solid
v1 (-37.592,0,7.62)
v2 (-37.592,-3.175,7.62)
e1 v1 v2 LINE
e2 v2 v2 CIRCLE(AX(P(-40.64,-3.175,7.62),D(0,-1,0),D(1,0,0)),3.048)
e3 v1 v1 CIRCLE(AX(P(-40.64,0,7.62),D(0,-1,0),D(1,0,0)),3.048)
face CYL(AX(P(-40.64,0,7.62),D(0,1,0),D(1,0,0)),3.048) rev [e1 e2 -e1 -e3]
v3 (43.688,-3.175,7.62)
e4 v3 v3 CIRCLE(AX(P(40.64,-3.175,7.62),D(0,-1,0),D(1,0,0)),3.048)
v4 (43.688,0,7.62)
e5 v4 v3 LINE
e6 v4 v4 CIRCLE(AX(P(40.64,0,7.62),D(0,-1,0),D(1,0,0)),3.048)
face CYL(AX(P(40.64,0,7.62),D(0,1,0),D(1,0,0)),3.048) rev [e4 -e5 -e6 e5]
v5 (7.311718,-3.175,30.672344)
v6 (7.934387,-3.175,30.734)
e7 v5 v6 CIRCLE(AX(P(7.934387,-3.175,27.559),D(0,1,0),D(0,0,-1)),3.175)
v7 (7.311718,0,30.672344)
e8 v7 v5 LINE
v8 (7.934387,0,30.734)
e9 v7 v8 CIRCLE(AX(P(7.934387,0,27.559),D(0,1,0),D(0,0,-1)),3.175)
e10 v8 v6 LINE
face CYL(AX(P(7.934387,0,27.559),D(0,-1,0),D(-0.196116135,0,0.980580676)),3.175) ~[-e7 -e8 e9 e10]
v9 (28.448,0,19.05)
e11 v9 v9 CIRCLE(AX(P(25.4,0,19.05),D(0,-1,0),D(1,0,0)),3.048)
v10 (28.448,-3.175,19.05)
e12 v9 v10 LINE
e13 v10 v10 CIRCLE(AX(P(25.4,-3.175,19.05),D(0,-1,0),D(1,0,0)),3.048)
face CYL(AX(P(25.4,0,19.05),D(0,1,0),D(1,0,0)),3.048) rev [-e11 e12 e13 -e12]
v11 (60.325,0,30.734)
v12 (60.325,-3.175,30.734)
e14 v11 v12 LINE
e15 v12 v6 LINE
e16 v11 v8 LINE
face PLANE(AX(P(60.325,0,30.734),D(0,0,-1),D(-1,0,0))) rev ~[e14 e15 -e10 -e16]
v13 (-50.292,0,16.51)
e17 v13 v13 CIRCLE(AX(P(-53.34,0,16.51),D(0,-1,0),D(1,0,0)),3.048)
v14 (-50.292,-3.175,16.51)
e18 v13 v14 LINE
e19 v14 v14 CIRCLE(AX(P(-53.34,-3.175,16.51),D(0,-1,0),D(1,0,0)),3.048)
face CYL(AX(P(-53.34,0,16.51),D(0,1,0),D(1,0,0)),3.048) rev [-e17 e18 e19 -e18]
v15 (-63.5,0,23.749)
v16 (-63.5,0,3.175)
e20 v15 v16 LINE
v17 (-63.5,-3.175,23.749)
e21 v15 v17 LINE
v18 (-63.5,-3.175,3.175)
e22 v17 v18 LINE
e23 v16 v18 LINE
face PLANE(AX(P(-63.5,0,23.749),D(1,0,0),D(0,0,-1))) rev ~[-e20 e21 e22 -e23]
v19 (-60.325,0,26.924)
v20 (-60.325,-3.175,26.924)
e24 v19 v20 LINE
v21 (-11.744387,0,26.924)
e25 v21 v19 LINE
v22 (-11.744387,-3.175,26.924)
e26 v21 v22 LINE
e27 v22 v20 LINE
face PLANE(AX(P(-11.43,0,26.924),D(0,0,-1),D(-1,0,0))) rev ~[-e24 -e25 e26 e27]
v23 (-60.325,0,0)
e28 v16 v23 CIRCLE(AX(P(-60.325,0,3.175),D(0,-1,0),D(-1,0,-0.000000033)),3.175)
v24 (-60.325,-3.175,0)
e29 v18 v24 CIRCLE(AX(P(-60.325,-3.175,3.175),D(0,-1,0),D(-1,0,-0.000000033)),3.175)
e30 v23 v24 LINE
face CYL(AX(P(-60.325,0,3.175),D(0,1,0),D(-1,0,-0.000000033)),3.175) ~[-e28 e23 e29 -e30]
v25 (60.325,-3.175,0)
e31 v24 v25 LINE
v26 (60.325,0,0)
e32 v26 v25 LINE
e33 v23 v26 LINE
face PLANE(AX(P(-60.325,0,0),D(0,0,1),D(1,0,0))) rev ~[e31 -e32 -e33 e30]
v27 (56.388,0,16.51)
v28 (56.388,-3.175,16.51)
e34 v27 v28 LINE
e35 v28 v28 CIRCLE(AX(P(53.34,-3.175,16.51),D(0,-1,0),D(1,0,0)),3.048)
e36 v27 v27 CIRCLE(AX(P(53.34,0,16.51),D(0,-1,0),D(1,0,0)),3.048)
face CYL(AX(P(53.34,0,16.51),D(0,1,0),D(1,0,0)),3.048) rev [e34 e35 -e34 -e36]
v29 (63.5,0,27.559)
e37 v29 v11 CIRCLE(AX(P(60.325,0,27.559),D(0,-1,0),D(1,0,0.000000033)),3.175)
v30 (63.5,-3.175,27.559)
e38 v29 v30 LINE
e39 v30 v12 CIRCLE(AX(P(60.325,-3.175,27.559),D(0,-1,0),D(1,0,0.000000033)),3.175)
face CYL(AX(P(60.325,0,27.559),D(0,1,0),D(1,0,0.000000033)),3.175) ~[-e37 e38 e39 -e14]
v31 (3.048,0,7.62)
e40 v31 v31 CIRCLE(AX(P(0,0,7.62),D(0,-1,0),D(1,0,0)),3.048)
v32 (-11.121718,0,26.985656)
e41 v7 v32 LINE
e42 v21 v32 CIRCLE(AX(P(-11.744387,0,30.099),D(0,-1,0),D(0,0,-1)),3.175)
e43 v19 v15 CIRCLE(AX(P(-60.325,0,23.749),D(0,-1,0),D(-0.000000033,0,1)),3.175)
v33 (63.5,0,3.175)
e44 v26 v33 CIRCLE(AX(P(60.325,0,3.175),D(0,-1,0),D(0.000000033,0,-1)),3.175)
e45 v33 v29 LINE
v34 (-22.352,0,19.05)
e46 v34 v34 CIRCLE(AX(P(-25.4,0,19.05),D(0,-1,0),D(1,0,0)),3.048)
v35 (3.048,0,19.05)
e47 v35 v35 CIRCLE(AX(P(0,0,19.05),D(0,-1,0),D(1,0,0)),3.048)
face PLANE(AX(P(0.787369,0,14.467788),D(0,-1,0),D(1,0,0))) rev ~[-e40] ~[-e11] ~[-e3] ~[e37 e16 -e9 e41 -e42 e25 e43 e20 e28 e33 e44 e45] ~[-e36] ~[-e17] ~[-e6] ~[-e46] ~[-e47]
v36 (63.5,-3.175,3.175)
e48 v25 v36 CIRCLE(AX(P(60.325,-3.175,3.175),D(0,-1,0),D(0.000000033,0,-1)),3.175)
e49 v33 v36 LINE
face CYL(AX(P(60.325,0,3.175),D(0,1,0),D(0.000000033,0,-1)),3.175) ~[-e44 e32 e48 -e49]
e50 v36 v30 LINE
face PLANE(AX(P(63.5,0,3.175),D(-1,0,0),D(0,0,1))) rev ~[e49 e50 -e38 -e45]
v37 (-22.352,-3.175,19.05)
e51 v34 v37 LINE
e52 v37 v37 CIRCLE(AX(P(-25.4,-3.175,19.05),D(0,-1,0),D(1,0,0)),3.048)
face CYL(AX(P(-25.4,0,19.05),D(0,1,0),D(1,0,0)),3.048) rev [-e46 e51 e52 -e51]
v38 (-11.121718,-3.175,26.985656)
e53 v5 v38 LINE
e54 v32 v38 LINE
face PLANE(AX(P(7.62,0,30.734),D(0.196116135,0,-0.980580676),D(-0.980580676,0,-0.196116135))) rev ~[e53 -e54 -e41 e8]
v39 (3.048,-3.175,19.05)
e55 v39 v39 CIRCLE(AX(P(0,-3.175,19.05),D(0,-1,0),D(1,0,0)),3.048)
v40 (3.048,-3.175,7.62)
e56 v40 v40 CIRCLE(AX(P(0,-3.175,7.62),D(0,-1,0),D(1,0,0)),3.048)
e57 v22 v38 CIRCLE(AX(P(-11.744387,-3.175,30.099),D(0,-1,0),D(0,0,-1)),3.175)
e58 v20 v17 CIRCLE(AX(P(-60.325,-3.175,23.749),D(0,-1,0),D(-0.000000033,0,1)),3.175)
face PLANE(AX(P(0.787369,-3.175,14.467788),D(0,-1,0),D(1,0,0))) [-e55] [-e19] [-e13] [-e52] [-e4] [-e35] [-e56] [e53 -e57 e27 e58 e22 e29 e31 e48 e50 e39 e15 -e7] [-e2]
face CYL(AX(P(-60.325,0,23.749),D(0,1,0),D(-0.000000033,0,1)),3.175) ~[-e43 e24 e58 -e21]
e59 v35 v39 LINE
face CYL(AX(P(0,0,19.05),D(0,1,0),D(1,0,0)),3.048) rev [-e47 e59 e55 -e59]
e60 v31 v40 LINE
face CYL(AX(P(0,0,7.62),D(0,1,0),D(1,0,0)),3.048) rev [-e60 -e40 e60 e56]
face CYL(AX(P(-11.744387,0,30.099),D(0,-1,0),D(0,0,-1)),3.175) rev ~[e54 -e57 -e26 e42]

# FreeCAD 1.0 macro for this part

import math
import FreeCAD as App
import Part
import Sketcher
from FreeCAD import Vector
Q = App.Units.Quantity


def edges_at(feature, points):
    """Names of the edges that pass closest to the given points."""
    edges = feature.Shape.Edges
    near = lambda p: min(range(len(edges)), key=lambda i: edges[i].distToShape(Part.Vertex(*p))[0])
    return sorted({f"Edge{near(p) + 1}" for p in points})

doc = App.newDocument("Part")
body = doc.addObject("PartDesign::Body", "Body")

# Sketch on XZ plane
sketch1 = body.newObject("Sketcher::SketchObject", "Sketch")
sketch1.AttachmentSupport = (doc.getObject("XZ_Plane"), [""])
sketch1.MapMode = "FlatFace"
sketch1.addGeometry(Part.ArcOfCircle(Part.Circle(Vector(-60.325, 3.175, 0), Vector(0, 0, 1), 3.175), math.radians(-179.999998), math.radians(-90.000002)), False)
sketch1.addGeometry(Part.LineSegment(Vector(-60.325, 0, 0), Vector(60.325, 0, 0)), False)
sketch1.addGeometry(Part.ArcOfCircle(Part.Circle(Vector(60.325, 3.175, 0), Vector(0, 0, 1), 3.175), math.radians(-89.999998), math.radians(-0.000002)), False)
sketch1.addGeometry(Part.LineSegment(Vector(63.5, 3.175, 0), Vector(63.5, 27.559, 0)), False)
sketch1.addGeometry(Part.ArcOfCircle(Part.Circle(Vector(60.325, 27.559, 0), Vector(0, 0, 1), 3.175), math.radians(0.000002), math.radians(89.999998)), False)
sketch1.addGeometry(Part.LineSegment(Vector(60.325, 30.734, 0), Vector(7.62, 30.734, 0)), False)
sketch1.addGeometry(Part.LineSegment(Vector(7.62, 30.734, 0), Vector(-11.43, 26.924, 0)), False)
sketch1.addGeometry(Part.LineSegment(Vector(-11.43, 26.924, 0), Vector(-60.325, 26.924, 0)), False)
sketch1.addGeometry(Part.ArcOfCircle(Part.Circle(Vector(-60.325, 23.749, 0), Vector(0, 0, 1), 3.175), math.radians(90.000002), math.radians(179.999998)), False)
sketch1.addGeometry(Part.LineSegment(Vector(-63.5, 23.749, 0), Vector(-63.5, 3.175, 0)), False)
sketch1.addGeometry(Part.Circle(Vector(-40.64, 7.62, 0), Vector(0, 0, 1), 3.048), False)
sketch1.addGeometry(Part.Circle(Vector(0, 7.62, 0), Vector(0, 0, 1), 3.048), False)
sketch1.addGeometry(Part.Circle(Vector(40.64, 7.62, 0), Vector(0, 0, 1), 3.048), False)
sketch1.addGeometry(Part.Circle(Vector(-53.34, 16.51, 0), Vector(0, 0, 1), 3.048), False)
sketch1.addGeometry(Part.Circle(Vector(-25.4, 19.05, 0), Vector(0, 0, 1), 3.048), False)
sketch1.addGeometry(Part.Circle(Vector(53.34, 16.51, 0), Vector(0, 0, 1), 3.048), False)
sketch1.addGeometry(Part.Circle(Vector(0, 19.05, 0), Vector(0, 0, 1), 3.048), False)
sketch1.addGeometry(Part.Circle(Vector(25.4, 19.05, 0), Vector(0, 0, 1), 3.048), False)
sketch1.addConstraint(Sketcher.Constraint("Tangent", 0, 2, 1, 1))
sketch1.addConstraint(Sketcher.Constraint("Tangent", 1, 2, 2, 1))
sketch1.addConstraint(Sketcher.Constraint("Tangent", 2, 2, 3, 1))
sketch1.addConstraint(Sketcher.Constraint("Tangent", 3, 2, 4, 1))
sketch1.addConstraint(Sketcher.Constraint("Tangent", 4, 2, 5, 1))
sketch1.addConstraint(Sketcher.Constraint("Coincident", 5, 2, 6, 1))
sketch1.addConstraint(Sketcher.Constraint("Coincident", 6, 2, 7, 1))
sketch1.addConstraint(Sketcher.Constraint("Tangent", 7, 2, 8, 1))
sketch1.addConstraint(Sketcher.Constraint("Tangent", 8, 2, 9, 1))
sketch1.addConstraint(Sketcher.Constraint("Tangent", 9, 2, 0, 1))
sketch1.addConstraint(Sketcher.Constraint("Horizontal", 1))
sketch1.addConstraint(Sketcher.Constraint("Vertical", 3))
sketch1.addConstraint(Sketcher.Constraint("Horizontal", 5))
sketch1.addConstraint(Sketcher.Constraint("Horizontal", 7))
sketch1.addConstraint(Sketcher.Constraint("Vertical", 9))
sketch1.addConstraint(Sketcher.Constraint("Equal", 0, 2))
sketch1.addConstraint(Sketcher.Constraint("Equal", 2, 4))
sketch1.addConstraint(Sketcher.Constraint("Equal", 4, 8))
sketch1.addConstraint(Sketcher.Constraint("Equal", 10, 11))
sketch1.addConstraint(Sketcher.Constraint("Equal", 11, 12))
sketch1.addConstraint(Sketcher.Constraint("Equal", 12, 13))
sketch1.addConstraint(Sketcher.Constraint("Equal", 13, 14))
sketch1.addConstraint(Sketcher.Constraint("Equal", 14, 15))
sketch1.addConstraint(Sketcher.Constraint("Equal", 15, 16))
sketch1.addConstraint(Sketcher.Constraint("Equal", 16, 17))
sketch1.addConstraint(Sketcher.Constraint("Symmetric", 0, 2, 1, 2, -1, 1))
sketch1.addConstraint(Sketcher.Constraint("Symmetric", 10, 3, 12, 3, -2))
sketch1.addConstraint(Sketcher.Constraint("Symmetric", 13, 3, 15, 3, -2))
sketch1.addConstraint(Sketcher.Constraint("Symmetric", 14, 3, 17, 3, -2))
sketch1.addConstraint(Sketcher.Constraint("PointOnObject", 11, 3, -2))
sketch1.addConstraint(Sketcher.Constraint("PointOnObject", 16, 3, -2))
sketch1.addConstraint(Sketcher.Constraint("Horizontal", 10, 3, 11, 3))
sketch1.addConstraint(Sketcher.Constraint("Horizontal", 14, 3, 16, 3))
sketch1.addConstraint(Sketcher.Constraint("Diameter", 10, Q("0.24 in")))
sketch1.addConstraint(Sketcher.Constraint("DistanceX", 14, 3, -1, 1, Q("1 in")))
sketch1.addConstraint(Sketcher.Constraint("Radius", 0, Q("0.125 in")))
sketch1.addConstraint(Sketcher.Constraint("DistanceX", 1, 1, 1, 2, Q("4.75 in")))
sketch1.addConstraint(Sketcher.Constraint("DistanceY", 3, 1, 3, 2, Q("0.96 in")))
sketch1.addConstraint(Sketcher.Constraint("DistanceY", 9, 2, 9, 1, Q("0.81 in")))
sketch1.addConstraint(Sketcher.Constraint("DistanceX", 10, 3, -1, 1, Q("1.6 in")))
sketch1.addConstraint(Sketcher.Constraint("DistanceY", -1, 1, 10, 3, Q("0.3 in")))
sketch1.addConstraint(Sketcher.Constraint("DistanceX", 13, 3, -1, 1, Q("2.1 in")))
sketch1.addConstraint(Sketcher.Constraint("DistanceX", -1, 1, 5, 2, Q("0.3 in")))
sketch1.addConstraint(Sketcher.Constraint("DistanceY", 13, 3, 14, 3, Q("0.1 in")))
sketch1.addConstraint(Sketcher.Constraint("DistanceX", 7, 2, 7, 1, Q("1.925 in")))
sketch1.addConstraint(Sketcher.Constraint("DistanceY", -1, 1, 13, 3, Q("0.65 in")))
pad1 = body.newObject("PartDesign::Pad", "Pad")
pad1.Profile = sketch1
pad1.Length = Q("0.125 in")
doc.recompute()

fillet = body.newObject("PartDesign::Fillet", "Fillet")
fillet.Base = (pad1, edges_at(pad1, [(-11.43, -1.587, 26.924), (7.62, -1.587, 30.734)]))
fillet.Radius = Q("0.125 in")

doc.recompute()
